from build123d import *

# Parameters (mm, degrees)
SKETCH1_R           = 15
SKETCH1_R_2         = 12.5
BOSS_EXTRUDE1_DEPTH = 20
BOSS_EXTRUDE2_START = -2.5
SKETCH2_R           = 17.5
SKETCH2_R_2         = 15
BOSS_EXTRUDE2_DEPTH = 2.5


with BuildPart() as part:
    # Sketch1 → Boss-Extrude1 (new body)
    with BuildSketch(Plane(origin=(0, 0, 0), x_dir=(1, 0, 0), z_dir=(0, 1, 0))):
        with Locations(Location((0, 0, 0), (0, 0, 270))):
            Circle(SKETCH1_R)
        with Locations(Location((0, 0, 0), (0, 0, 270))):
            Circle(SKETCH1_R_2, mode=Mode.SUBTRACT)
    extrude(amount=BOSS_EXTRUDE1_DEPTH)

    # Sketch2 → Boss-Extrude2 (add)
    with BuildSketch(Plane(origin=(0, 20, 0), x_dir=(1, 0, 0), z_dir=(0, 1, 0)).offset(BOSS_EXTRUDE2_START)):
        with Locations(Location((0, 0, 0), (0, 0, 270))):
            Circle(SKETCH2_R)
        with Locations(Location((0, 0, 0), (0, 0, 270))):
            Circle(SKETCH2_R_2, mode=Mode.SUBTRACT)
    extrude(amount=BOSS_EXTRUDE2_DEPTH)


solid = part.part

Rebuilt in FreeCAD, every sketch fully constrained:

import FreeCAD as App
import Part
import Sketcher
from FreeCAD import Vector
Q = App.Units.Quantity

doc = App.newDocument("Part")
body = doc.addObject("PartDesign::Body", "Body")

# Sketch on XZ plane
sketch1 = body.newObject("Sketcher::SketchObject", "Sketch")
sketch1.AttachmentSupport = (doc.getObject("XZ_Plane"), [""])
sketch1.MapMode = "FlatFace"
sketch1.addGeometry([
    Part.Circle(Vector(0, 0, 0), Vector(0, 0, 1), 15),
    Part.Circle(Vector(0, 0, 0), Vector(0, 0, 1), 12),
], False)
sketch1.addConstraint([
    Sketcher.Constraint("Coincident", 0, 3, -1, 1),
    Sketcher.Constraint("Coincident", 1, 3, -1, 1),
    Sketcher.Constraint("Diameter", 0, Q("30 mm")),
    Sketcher.Constraint("Diameter", 1, Q("25 mm")),
])
pad1 = body.newObject("PartDesign::Pad", "Pad")
pad1.Profile = sketch1
pad1.Length = 20
pad1.Reversed = True

# Sketch on XZ plane
sketch2 = body.newObject("Sketcher::SketchObject", "Sketch001")
sketch2.AttachmentSupport = (doc.getObject("XZ_Plane"), [""])
sketch2.MapMode = "FlatFace"
sketch2.AttachmentOffset = App.Placement(Vector(0, 0, -17.5), App.Rotation())
sketch2.addGeometry([
    Part.Circle(Vector(0, 0, 0), Vector(0, 0, 1), 18),
    Part.Circle(Vector(0, 0, 0), Vector(0, 0, 1), 15),
], False)
sketch2.addConstraint([
    Sketcher.Constraint("Coincident", 0, 3, -1, 1),
    Sketcher.Constraint("Coincident", 1, 3, -1, 1),
    Sketcher.Constraint("Diameter", 0, Q("35 mm")),
    Sketcher.Constraint("Diameter", 1, Q("30 mm")),
])
pad2 = body.newObject("PartDesign::Pad", "Pad001")
pad2.Profile = sketch2
pad2.Length = 2.5
pad2.Reversed = True

doc.recompute()
